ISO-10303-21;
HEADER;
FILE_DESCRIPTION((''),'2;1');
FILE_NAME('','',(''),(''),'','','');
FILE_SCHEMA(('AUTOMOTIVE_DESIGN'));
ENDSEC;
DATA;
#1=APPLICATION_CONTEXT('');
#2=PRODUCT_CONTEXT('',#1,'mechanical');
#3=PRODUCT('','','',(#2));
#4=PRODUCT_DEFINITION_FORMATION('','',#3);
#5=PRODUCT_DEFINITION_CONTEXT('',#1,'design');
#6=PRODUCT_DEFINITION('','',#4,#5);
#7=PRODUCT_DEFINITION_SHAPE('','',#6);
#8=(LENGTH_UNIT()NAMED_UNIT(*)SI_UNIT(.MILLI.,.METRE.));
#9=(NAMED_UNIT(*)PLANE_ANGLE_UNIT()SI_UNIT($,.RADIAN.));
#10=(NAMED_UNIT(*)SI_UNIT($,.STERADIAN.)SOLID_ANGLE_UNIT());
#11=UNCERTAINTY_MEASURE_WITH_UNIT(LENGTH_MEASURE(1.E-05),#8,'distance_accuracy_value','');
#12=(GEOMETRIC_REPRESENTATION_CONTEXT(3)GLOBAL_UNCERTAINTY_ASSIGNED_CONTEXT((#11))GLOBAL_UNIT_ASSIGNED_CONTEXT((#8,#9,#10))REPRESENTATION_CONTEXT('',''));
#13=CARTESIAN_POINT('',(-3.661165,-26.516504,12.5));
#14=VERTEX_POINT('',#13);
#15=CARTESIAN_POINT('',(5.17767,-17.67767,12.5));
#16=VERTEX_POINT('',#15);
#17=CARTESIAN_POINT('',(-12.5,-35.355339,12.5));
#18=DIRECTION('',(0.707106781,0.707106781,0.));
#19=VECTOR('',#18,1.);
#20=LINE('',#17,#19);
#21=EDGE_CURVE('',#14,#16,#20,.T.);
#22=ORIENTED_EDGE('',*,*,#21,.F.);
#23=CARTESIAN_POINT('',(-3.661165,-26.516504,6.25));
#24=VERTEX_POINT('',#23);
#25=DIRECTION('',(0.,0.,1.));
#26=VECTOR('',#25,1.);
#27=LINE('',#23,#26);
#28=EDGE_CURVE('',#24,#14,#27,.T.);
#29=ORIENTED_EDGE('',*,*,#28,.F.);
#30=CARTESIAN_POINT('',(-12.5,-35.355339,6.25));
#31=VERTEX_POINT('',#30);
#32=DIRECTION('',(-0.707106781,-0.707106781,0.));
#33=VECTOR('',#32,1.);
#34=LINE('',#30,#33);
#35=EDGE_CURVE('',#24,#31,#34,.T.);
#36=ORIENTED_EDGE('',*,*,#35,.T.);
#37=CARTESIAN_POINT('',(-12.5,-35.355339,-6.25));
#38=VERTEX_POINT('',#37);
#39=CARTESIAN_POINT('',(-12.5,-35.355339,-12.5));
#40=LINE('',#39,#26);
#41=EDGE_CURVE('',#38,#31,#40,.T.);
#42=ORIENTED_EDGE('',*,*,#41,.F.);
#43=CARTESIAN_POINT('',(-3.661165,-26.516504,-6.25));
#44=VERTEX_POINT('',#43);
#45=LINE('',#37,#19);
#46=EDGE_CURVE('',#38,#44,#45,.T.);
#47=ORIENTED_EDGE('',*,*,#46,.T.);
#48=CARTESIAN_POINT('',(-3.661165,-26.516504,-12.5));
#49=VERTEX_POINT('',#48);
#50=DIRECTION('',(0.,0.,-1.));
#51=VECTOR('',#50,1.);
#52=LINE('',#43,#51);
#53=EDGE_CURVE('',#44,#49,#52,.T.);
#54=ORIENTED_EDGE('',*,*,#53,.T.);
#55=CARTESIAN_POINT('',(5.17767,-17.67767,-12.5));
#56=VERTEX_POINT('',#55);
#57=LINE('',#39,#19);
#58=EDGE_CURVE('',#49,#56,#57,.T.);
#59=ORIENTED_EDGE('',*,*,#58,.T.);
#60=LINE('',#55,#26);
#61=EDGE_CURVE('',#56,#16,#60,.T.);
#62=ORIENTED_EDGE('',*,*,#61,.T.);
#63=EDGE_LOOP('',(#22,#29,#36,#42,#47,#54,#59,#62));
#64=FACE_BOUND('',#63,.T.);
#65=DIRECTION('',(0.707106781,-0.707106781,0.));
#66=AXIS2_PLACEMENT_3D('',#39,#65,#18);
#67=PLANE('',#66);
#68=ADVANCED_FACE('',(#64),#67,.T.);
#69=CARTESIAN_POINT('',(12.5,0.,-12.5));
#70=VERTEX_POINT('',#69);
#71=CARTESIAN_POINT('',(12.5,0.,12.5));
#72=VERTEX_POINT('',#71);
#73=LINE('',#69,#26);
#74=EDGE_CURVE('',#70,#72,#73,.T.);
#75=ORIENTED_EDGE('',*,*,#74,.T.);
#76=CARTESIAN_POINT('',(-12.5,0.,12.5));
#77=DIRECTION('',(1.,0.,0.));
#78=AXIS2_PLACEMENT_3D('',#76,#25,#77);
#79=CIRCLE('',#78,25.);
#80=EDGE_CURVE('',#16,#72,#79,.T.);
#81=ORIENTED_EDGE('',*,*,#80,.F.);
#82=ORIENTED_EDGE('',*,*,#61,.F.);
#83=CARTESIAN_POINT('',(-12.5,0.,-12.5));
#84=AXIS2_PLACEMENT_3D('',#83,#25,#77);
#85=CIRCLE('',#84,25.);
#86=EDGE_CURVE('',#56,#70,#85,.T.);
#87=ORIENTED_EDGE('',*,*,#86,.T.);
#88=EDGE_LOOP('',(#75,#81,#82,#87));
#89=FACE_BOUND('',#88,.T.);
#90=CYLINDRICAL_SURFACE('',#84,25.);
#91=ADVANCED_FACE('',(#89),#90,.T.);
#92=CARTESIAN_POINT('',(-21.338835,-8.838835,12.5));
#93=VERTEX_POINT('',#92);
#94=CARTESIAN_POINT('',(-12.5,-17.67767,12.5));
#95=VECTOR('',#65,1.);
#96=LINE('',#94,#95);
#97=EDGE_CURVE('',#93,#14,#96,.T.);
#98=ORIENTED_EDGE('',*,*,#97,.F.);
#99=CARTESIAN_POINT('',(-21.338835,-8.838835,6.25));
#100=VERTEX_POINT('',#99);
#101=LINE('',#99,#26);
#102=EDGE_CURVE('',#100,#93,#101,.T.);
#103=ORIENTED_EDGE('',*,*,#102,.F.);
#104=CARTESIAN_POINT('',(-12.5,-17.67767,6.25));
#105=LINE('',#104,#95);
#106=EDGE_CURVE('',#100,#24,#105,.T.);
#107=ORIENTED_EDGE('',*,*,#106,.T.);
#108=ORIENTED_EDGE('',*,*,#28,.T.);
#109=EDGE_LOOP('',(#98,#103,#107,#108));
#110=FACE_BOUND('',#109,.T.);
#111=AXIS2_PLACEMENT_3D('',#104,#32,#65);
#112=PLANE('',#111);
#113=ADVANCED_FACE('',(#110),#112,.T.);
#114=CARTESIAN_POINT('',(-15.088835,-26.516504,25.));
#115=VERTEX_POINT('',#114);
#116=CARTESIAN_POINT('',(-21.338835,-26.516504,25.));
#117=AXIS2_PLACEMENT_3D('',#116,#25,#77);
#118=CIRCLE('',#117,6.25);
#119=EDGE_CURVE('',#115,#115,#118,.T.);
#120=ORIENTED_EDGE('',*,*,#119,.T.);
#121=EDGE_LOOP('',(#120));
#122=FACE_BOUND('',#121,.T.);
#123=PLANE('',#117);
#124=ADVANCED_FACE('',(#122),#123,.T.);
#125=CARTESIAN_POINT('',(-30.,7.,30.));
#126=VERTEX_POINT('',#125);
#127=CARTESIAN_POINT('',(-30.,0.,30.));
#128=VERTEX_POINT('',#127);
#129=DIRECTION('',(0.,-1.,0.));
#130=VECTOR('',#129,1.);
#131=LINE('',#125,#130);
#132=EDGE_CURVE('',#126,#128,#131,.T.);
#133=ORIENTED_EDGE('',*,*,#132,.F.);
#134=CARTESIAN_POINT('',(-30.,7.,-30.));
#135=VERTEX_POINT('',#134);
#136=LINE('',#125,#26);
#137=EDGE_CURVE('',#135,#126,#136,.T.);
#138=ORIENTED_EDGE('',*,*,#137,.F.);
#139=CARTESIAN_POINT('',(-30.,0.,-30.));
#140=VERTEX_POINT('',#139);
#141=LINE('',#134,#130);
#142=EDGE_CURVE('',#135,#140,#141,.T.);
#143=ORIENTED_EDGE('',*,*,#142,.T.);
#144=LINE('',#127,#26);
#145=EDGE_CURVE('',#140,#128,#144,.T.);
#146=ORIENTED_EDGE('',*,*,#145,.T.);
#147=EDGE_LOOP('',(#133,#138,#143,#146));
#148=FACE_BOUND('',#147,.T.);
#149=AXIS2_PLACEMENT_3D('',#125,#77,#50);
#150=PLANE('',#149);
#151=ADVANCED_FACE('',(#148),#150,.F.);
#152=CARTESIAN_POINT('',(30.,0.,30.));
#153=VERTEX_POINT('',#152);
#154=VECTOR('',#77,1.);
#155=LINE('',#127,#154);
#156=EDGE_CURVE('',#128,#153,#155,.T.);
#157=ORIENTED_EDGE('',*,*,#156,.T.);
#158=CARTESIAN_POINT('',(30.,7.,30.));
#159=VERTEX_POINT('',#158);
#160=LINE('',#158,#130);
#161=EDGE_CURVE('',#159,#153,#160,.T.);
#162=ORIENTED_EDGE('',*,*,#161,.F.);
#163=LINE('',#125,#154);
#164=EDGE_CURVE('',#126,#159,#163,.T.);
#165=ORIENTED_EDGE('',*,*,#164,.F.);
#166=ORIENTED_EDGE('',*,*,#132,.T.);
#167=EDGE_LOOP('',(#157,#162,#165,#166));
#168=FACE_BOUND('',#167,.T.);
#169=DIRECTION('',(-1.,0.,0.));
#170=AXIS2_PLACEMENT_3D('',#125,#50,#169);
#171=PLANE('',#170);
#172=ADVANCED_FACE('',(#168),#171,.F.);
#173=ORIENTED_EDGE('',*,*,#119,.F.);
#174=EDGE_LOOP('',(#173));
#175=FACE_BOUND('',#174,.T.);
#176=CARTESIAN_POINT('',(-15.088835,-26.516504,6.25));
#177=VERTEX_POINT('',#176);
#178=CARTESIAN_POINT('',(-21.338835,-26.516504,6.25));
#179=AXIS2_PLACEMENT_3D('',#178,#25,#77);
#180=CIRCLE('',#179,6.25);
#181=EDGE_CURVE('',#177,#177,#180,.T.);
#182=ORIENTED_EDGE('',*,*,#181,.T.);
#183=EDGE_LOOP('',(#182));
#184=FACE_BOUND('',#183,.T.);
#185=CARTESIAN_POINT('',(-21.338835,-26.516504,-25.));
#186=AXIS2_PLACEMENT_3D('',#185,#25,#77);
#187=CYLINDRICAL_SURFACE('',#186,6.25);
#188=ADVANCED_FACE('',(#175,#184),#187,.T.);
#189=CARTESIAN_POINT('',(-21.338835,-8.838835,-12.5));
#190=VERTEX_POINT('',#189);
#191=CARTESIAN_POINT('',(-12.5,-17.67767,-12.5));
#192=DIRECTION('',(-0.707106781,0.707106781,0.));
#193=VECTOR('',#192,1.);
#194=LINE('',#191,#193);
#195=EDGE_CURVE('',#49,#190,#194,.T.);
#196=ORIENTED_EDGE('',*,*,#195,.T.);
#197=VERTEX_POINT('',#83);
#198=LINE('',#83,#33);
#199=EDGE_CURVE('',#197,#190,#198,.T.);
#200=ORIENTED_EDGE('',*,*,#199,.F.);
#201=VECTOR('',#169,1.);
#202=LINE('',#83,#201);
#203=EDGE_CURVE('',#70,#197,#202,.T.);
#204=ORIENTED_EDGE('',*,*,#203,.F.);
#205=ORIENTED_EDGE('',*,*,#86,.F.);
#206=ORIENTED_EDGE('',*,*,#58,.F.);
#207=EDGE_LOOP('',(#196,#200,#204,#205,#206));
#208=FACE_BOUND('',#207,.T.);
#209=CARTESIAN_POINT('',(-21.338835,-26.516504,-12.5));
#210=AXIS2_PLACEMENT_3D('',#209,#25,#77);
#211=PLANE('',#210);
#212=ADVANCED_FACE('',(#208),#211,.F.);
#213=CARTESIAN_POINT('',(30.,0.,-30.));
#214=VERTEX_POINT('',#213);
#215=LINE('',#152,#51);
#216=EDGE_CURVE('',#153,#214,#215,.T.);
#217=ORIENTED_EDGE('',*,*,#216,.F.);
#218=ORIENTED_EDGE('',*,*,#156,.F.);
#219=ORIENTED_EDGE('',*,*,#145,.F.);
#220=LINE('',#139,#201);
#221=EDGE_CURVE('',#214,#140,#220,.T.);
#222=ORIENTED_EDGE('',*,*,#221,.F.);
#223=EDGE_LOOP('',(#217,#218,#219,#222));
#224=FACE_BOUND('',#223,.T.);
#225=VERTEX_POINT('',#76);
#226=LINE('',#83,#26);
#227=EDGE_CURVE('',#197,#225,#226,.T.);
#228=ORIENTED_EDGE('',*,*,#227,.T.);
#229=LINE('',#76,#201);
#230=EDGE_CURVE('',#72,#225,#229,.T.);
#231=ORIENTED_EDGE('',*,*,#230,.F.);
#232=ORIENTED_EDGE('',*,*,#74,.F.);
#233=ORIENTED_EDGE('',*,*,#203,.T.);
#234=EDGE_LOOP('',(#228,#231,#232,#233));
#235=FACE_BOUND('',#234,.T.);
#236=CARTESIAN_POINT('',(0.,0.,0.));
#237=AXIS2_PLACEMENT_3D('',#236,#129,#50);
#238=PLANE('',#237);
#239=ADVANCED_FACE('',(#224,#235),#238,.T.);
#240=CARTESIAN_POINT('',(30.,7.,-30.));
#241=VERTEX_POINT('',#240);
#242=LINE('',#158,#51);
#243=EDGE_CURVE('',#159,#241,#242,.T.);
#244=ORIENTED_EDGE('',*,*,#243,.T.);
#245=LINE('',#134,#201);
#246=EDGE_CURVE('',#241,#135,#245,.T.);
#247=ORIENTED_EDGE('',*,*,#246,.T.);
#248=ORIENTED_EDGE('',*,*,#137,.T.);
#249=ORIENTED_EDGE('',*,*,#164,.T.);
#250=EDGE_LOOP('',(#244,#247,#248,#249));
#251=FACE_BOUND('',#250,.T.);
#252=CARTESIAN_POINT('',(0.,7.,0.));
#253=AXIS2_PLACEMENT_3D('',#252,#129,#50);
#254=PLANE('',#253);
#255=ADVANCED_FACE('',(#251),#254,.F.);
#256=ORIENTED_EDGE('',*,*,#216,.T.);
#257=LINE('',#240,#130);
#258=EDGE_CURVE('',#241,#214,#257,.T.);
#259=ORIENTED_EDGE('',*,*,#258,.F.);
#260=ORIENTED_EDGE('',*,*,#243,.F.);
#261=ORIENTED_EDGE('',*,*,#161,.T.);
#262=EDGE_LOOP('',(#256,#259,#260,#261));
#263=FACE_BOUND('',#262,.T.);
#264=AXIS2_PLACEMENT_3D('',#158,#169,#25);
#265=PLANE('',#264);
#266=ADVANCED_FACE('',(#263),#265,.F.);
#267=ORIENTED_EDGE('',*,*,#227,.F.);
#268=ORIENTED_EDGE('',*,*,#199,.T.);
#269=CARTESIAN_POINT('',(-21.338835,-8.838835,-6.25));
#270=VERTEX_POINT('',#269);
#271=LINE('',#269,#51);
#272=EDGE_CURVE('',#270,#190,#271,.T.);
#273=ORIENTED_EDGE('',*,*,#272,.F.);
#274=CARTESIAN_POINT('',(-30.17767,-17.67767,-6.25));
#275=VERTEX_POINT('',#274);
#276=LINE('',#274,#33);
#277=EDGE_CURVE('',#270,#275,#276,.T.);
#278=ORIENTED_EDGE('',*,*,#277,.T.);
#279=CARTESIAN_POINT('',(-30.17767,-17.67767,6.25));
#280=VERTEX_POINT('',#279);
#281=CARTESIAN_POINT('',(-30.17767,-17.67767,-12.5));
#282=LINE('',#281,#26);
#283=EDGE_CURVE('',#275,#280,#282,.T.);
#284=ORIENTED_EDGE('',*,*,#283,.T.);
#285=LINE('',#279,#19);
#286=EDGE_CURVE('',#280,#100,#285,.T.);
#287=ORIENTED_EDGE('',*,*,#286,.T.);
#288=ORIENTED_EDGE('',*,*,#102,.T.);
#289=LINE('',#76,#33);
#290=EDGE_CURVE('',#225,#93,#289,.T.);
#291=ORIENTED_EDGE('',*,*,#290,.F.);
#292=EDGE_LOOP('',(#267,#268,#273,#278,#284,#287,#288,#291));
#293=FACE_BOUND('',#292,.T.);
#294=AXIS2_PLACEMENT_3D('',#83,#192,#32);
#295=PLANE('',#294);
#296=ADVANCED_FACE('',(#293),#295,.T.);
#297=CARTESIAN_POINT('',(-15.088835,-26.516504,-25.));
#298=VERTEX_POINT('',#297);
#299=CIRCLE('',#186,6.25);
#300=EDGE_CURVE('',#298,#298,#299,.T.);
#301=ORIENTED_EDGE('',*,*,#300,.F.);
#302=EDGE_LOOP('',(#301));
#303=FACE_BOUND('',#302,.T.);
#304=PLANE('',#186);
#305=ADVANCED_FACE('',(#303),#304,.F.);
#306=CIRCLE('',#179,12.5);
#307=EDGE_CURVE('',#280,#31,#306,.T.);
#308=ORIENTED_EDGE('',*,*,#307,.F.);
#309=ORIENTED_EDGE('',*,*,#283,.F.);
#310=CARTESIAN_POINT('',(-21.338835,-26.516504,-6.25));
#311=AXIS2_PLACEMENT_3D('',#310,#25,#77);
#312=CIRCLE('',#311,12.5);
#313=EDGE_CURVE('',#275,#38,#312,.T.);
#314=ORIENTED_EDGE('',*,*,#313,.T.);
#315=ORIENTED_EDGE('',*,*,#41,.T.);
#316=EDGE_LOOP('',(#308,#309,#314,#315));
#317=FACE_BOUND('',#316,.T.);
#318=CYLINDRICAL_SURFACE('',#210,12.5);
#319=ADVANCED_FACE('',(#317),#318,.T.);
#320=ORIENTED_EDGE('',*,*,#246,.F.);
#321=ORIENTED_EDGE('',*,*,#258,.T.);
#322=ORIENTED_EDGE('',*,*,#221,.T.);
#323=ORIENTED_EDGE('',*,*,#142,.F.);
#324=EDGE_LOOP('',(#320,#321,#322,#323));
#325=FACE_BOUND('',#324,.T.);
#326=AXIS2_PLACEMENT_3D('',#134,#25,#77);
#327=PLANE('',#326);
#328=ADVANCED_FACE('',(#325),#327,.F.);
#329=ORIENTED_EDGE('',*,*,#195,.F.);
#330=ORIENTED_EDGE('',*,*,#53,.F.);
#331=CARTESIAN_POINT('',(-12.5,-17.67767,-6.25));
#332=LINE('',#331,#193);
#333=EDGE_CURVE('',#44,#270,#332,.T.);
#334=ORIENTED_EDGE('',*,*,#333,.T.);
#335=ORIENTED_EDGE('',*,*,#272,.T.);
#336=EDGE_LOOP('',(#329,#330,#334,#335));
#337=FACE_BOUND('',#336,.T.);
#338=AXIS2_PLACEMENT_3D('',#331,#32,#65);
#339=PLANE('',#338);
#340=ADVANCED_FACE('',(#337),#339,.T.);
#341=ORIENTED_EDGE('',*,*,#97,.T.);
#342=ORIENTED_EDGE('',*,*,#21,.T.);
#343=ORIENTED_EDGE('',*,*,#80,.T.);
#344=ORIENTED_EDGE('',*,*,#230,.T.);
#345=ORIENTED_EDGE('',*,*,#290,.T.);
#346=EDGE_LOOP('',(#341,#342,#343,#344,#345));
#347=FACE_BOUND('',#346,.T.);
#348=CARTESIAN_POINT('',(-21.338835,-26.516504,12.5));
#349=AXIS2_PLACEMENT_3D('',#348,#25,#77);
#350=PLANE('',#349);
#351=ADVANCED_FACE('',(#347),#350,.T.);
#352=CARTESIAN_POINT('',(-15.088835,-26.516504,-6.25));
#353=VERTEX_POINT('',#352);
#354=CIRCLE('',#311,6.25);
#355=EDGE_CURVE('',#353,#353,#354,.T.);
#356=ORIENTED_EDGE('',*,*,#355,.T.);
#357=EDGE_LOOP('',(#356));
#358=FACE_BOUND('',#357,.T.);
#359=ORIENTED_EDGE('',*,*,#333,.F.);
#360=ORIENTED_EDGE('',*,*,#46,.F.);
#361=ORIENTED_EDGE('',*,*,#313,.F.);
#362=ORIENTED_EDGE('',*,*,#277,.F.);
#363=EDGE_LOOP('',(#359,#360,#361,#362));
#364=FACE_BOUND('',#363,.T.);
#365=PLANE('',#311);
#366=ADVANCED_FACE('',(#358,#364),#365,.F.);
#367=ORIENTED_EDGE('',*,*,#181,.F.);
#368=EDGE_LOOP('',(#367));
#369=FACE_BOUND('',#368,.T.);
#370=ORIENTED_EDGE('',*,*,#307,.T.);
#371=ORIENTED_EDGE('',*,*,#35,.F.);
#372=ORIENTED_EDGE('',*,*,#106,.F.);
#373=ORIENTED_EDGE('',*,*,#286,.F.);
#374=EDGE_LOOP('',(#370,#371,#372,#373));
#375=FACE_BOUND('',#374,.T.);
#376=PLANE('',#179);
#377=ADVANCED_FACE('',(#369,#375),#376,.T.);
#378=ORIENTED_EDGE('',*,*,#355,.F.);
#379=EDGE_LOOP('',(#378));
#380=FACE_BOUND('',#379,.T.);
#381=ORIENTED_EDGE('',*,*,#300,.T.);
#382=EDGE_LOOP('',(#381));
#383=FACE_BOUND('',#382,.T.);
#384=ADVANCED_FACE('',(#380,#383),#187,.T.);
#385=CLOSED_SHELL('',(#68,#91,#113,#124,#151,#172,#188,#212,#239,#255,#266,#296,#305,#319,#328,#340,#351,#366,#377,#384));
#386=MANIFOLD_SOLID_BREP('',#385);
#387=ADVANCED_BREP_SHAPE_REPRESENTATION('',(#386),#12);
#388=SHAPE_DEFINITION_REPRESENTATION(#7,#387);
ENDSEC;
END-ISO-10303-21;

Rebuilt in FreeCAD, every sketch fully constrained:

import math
import FreeCAD as App
import Part
import Sketcher

V = App.Vector


def add_polygon(sketch, points):
    """Adds a closed chain of lines whose ends are joined by coincident constraints."""
    first, n = sketch.GeometryCount, len(points)
    for a, b in zip(points, points[1:] + points[:1]):
        sketch.addGeometry(Part.LineSegment(App.Vector(*a, 0), App.Vector(*b, 0)), False)
    for i in range(n):
        sketch.addConstraint(Sketcher.Constraint("Coincident", first + i, 2, first + (i + 1) % n, 1))

doc = App.newDocument("Part")
body = doc.addObject("PartDesign::Body", "Body")

# Sketch on XZ plane
sketch1 = body.newObject("Sketcher::SketchObject", "Sketch")
sketch1.AttachmentSupport = (doc.getObject("XZ_Plane"), [""])
sketch1.MapMode = "FlatFace"
add_polygon(sketch1, [(-30, -30), (-30, 30), (30, 30), (30, -30)])  # lines 0-3
sketch1.addConstraint([
    Sketcher.Constraint("Vertical", 0),
    Sketcher.Constraint("Horizontal", 1),
    Sketcher.Constraint("Vertical", 2),
    Sketcher.Constraint("Horizontal", 3),
    Sketcher.Constraint("Symmetric", 0, 2, 2, 2, -1, 1),
    Sketcher.Constraint("Equal", 3, 0),
    Sketcher.Constraint("DistanceX", 1, 1, 1, 2, 60.0),
])
pad1 = body.newObject("PartDesign::Pad", "Pad")
pad1.Profile = sketch1
pad1.Length = 7
pad1.Reversed = True

# Sketch on XY plane
sketch2 = body.newObject("Sketcher::SketchObject", "Sketch001")
sketch2.AttachmentSupport = (doc.getObject("XY_Plane"), [""])
sketch2.MapMode = "FlatFace"
sketch2.addGeometry([
    Part.LineSegment(V(12, 0, 0), V(-12, 0, 0)),  # 0
    Part.LineSegment(V(-12, 0, 0), V(-30, -18, 0)),  # 1
    Part.ArcOfCircle(Part.Circle(V(-21, -27, 0), V(0, 0, 1), 12), math.radians(135), math.radians(315)),  # 2
    Part.LineSegment(V(-12, -35, 0), V(5, -18, 0)),  # 3
    Part.ArcOfCircle(Part.Circle(V(-13, 0, 0), V(0, 0, 1), 25), math.radians(-45), math.radians(0)),  # 4
], False)
sketch2.addConstraint([
    Sketcher.Constraint("Coincident", 0, 2, 1, 1),
    Sketcher.Constraint("Tangent", 1, 2, 2, 1),
    Sketcher.Constraint("Tangent", 2, 2, 3, 1),
    Sketcher.Constraint("Tangent", 3, 2, 4, 1),
    Sketcher.Constraint("Coincident", 4, 2, 0, 1),
    Sketcher.Constraint("Horizontal", 0),
    Sketcher.Constraint("Coincident", 0, 2, 4, 3),
    Sketcher.Constraint("Symmetric", 0, 2, 4, 2, -1, 1),
    Sketcher.Constraint("Parallel", 1, 3),
    Sketcher.Constraint("Horizontal", 1, 2, 3, 2),
    Sketcher.Constraint("Vertical", 0, 2, 2, 2),
    Sketcher.Constraint("Radius", 4, 25.0),
])
pad2 = body.newObject("PartDesign::Pad", "Pad001")
pad2.Profile = sketch2
pad2.Type = "TwoLengths"
pad2.Length = 12.5
pad2.Length2 = 12.5

# Sketch on XY plane
sketch3 = body.newObject("Sketcher::SketchObject", "Sketch002")
sketch3.AttachmentSupport = (doc.getObject("XY_Plane"), [""])
sketch3.MapMode = "FlatFace"
sketch3.AttachmentOffset = App.Placement(V(0, 0, -12.5), App.Rotation())
sketch3.addGeometry([
    Part.LineSegment(V(-4, -27, 0), V(-21, -9, 0)),
    Part.LineSegment(V(-21, -9, 0), V(-30, -18, 0)),
    Part.ArcOfCircle(Part.Circle(V(-21, -27, 0), V(0, 0, 1), 12), math.radians(135), math.radians(315)),
    Part.LineSegment(V(-12, -35, 0), V(-4, -27, 0)),
], False)
sketch3.addConstraint([
    Sketcher.Constraint("Coincident", 0, 2, 1, 1),
    Sketcher.Constraint("Tangent", 1, 2, 2, 1),
    Sketcher.Constraint("Tangent", 2, 2, 3, 1),
    Sketcher.Constraint("Coincident", 3, 2, 0, 1),
    Sketcher.Constraint("Perpendicular", 0, 1),
    Sketcher.Constraint("Parallel", 1, 3),
    Sketcher.Constraint("Horizontal", 2, 3, 3, 2),
    Sketcher.Constraint("Vertical", 2, 3, 0, 2),
    Sketcher.Constraint("Radius", 2, 12.5),
    Sketcher.Constraint("DistanceX", 2, 2, -1, 1, 12.5),
    Sketcher.Constraint("DistanceY", 1, 2, -1, 1, 17.67767),
])
pocket1 = body.newObject("PartDesign::Pocket", "Pocket")
pocket1.Profile = sketch3
pocket1.Length = 6.25
pocket1.Reversed = True

# Sketch on XY plane
sketch4 = body.newObject("Sketcher::SketchObject", "Sketch003")
sketch4.AttachmentSupport = (doc.getObject("XY_Plane"), [""])
sketch4.MapMode = "FlatFace"
sketch4.AttachmentOffset = App.Placement(V(0, 0, 6.25), App.Rotation())
sketch4.addGeometry([
    Part.LineSegment(V(-4, -27, 0), V(-21, -9, 0)),
    Part.LineSegment(V(-21, -9, 0), V(-30, -18, 0)),
    Part.ArcOfCircle(Part.Circle(V(-21, -27, 0), V(0, 0, 1), 12), math.radians(135), math.radians(315)),
    Part.LineSegment(V(-12, -35, 0), V(-4, -27, 0)),
], False)
sketch4.addConstraint([
    Sketcher.Constraint("Coincident", 0, 2, 1, 1),
    Sketcher.Constraint("Tangent", 1, 2, 2, 1),
    Sketcher.Constraint("Tangent", 2, 2, 3, 1),
    Sketcher.Constraint("Coincident", 3, 2, 0, 1),
    Sketcher.Constraint("Perpendicular", 0, 1),
    Sketcher.Constraint("Parallel", 1, 3),
    Sketcher.Constraint("Horizontal", 2, 3, 3, 2),
    Sketcher.Constraint("Vertical", 2, 3, 0, 2),
    Sketcher.Constraint("Radius", 2, 12.5),
    Sketcher.Constraint("DistanceX", 2, 2, -1, 1, 12.5),
    Sketcher.Constraint("DistanceY", 1, 2, -1, 1, 17.67767),
])
pocket2 = body.newObject("PartDesign::Pocket", "Pocket001")
pocket2.Profile = sketch4
pocket2.Length = 6.25
pocket2.Reversed = True

# Sketch on XY plane
sketch5 = body.newObject("Sketcher::SketchObject", "Sketch004")
sketch5.AttachmentSupport = (doc.getObject("XY_Plane"), [""])
sketch5.MapMode = "FlatFace"
sketch5.addGeometry(Part.Circle(V(-21, -27, 0), V(0, 0, 1), 6), False)
sketch5.addConstraint([
    Sketcher.Constraint("Diameter", 0, 12.5),
    Sketcher.Constraint("DistanceX", 0, 3, -1, 1, 21.338835),
    Sketcher.Constraint("DistanceY", 0, 3, -1, 1, 26.516504),
])
pad3 = body.newObject("PartDesign::Pad", "Pad002")
pad3.Profile = sketch5
pad3.Type = "TwoLengths"
pad3.Length = 25
pad3.Length2 = 25

doc.recompute()
